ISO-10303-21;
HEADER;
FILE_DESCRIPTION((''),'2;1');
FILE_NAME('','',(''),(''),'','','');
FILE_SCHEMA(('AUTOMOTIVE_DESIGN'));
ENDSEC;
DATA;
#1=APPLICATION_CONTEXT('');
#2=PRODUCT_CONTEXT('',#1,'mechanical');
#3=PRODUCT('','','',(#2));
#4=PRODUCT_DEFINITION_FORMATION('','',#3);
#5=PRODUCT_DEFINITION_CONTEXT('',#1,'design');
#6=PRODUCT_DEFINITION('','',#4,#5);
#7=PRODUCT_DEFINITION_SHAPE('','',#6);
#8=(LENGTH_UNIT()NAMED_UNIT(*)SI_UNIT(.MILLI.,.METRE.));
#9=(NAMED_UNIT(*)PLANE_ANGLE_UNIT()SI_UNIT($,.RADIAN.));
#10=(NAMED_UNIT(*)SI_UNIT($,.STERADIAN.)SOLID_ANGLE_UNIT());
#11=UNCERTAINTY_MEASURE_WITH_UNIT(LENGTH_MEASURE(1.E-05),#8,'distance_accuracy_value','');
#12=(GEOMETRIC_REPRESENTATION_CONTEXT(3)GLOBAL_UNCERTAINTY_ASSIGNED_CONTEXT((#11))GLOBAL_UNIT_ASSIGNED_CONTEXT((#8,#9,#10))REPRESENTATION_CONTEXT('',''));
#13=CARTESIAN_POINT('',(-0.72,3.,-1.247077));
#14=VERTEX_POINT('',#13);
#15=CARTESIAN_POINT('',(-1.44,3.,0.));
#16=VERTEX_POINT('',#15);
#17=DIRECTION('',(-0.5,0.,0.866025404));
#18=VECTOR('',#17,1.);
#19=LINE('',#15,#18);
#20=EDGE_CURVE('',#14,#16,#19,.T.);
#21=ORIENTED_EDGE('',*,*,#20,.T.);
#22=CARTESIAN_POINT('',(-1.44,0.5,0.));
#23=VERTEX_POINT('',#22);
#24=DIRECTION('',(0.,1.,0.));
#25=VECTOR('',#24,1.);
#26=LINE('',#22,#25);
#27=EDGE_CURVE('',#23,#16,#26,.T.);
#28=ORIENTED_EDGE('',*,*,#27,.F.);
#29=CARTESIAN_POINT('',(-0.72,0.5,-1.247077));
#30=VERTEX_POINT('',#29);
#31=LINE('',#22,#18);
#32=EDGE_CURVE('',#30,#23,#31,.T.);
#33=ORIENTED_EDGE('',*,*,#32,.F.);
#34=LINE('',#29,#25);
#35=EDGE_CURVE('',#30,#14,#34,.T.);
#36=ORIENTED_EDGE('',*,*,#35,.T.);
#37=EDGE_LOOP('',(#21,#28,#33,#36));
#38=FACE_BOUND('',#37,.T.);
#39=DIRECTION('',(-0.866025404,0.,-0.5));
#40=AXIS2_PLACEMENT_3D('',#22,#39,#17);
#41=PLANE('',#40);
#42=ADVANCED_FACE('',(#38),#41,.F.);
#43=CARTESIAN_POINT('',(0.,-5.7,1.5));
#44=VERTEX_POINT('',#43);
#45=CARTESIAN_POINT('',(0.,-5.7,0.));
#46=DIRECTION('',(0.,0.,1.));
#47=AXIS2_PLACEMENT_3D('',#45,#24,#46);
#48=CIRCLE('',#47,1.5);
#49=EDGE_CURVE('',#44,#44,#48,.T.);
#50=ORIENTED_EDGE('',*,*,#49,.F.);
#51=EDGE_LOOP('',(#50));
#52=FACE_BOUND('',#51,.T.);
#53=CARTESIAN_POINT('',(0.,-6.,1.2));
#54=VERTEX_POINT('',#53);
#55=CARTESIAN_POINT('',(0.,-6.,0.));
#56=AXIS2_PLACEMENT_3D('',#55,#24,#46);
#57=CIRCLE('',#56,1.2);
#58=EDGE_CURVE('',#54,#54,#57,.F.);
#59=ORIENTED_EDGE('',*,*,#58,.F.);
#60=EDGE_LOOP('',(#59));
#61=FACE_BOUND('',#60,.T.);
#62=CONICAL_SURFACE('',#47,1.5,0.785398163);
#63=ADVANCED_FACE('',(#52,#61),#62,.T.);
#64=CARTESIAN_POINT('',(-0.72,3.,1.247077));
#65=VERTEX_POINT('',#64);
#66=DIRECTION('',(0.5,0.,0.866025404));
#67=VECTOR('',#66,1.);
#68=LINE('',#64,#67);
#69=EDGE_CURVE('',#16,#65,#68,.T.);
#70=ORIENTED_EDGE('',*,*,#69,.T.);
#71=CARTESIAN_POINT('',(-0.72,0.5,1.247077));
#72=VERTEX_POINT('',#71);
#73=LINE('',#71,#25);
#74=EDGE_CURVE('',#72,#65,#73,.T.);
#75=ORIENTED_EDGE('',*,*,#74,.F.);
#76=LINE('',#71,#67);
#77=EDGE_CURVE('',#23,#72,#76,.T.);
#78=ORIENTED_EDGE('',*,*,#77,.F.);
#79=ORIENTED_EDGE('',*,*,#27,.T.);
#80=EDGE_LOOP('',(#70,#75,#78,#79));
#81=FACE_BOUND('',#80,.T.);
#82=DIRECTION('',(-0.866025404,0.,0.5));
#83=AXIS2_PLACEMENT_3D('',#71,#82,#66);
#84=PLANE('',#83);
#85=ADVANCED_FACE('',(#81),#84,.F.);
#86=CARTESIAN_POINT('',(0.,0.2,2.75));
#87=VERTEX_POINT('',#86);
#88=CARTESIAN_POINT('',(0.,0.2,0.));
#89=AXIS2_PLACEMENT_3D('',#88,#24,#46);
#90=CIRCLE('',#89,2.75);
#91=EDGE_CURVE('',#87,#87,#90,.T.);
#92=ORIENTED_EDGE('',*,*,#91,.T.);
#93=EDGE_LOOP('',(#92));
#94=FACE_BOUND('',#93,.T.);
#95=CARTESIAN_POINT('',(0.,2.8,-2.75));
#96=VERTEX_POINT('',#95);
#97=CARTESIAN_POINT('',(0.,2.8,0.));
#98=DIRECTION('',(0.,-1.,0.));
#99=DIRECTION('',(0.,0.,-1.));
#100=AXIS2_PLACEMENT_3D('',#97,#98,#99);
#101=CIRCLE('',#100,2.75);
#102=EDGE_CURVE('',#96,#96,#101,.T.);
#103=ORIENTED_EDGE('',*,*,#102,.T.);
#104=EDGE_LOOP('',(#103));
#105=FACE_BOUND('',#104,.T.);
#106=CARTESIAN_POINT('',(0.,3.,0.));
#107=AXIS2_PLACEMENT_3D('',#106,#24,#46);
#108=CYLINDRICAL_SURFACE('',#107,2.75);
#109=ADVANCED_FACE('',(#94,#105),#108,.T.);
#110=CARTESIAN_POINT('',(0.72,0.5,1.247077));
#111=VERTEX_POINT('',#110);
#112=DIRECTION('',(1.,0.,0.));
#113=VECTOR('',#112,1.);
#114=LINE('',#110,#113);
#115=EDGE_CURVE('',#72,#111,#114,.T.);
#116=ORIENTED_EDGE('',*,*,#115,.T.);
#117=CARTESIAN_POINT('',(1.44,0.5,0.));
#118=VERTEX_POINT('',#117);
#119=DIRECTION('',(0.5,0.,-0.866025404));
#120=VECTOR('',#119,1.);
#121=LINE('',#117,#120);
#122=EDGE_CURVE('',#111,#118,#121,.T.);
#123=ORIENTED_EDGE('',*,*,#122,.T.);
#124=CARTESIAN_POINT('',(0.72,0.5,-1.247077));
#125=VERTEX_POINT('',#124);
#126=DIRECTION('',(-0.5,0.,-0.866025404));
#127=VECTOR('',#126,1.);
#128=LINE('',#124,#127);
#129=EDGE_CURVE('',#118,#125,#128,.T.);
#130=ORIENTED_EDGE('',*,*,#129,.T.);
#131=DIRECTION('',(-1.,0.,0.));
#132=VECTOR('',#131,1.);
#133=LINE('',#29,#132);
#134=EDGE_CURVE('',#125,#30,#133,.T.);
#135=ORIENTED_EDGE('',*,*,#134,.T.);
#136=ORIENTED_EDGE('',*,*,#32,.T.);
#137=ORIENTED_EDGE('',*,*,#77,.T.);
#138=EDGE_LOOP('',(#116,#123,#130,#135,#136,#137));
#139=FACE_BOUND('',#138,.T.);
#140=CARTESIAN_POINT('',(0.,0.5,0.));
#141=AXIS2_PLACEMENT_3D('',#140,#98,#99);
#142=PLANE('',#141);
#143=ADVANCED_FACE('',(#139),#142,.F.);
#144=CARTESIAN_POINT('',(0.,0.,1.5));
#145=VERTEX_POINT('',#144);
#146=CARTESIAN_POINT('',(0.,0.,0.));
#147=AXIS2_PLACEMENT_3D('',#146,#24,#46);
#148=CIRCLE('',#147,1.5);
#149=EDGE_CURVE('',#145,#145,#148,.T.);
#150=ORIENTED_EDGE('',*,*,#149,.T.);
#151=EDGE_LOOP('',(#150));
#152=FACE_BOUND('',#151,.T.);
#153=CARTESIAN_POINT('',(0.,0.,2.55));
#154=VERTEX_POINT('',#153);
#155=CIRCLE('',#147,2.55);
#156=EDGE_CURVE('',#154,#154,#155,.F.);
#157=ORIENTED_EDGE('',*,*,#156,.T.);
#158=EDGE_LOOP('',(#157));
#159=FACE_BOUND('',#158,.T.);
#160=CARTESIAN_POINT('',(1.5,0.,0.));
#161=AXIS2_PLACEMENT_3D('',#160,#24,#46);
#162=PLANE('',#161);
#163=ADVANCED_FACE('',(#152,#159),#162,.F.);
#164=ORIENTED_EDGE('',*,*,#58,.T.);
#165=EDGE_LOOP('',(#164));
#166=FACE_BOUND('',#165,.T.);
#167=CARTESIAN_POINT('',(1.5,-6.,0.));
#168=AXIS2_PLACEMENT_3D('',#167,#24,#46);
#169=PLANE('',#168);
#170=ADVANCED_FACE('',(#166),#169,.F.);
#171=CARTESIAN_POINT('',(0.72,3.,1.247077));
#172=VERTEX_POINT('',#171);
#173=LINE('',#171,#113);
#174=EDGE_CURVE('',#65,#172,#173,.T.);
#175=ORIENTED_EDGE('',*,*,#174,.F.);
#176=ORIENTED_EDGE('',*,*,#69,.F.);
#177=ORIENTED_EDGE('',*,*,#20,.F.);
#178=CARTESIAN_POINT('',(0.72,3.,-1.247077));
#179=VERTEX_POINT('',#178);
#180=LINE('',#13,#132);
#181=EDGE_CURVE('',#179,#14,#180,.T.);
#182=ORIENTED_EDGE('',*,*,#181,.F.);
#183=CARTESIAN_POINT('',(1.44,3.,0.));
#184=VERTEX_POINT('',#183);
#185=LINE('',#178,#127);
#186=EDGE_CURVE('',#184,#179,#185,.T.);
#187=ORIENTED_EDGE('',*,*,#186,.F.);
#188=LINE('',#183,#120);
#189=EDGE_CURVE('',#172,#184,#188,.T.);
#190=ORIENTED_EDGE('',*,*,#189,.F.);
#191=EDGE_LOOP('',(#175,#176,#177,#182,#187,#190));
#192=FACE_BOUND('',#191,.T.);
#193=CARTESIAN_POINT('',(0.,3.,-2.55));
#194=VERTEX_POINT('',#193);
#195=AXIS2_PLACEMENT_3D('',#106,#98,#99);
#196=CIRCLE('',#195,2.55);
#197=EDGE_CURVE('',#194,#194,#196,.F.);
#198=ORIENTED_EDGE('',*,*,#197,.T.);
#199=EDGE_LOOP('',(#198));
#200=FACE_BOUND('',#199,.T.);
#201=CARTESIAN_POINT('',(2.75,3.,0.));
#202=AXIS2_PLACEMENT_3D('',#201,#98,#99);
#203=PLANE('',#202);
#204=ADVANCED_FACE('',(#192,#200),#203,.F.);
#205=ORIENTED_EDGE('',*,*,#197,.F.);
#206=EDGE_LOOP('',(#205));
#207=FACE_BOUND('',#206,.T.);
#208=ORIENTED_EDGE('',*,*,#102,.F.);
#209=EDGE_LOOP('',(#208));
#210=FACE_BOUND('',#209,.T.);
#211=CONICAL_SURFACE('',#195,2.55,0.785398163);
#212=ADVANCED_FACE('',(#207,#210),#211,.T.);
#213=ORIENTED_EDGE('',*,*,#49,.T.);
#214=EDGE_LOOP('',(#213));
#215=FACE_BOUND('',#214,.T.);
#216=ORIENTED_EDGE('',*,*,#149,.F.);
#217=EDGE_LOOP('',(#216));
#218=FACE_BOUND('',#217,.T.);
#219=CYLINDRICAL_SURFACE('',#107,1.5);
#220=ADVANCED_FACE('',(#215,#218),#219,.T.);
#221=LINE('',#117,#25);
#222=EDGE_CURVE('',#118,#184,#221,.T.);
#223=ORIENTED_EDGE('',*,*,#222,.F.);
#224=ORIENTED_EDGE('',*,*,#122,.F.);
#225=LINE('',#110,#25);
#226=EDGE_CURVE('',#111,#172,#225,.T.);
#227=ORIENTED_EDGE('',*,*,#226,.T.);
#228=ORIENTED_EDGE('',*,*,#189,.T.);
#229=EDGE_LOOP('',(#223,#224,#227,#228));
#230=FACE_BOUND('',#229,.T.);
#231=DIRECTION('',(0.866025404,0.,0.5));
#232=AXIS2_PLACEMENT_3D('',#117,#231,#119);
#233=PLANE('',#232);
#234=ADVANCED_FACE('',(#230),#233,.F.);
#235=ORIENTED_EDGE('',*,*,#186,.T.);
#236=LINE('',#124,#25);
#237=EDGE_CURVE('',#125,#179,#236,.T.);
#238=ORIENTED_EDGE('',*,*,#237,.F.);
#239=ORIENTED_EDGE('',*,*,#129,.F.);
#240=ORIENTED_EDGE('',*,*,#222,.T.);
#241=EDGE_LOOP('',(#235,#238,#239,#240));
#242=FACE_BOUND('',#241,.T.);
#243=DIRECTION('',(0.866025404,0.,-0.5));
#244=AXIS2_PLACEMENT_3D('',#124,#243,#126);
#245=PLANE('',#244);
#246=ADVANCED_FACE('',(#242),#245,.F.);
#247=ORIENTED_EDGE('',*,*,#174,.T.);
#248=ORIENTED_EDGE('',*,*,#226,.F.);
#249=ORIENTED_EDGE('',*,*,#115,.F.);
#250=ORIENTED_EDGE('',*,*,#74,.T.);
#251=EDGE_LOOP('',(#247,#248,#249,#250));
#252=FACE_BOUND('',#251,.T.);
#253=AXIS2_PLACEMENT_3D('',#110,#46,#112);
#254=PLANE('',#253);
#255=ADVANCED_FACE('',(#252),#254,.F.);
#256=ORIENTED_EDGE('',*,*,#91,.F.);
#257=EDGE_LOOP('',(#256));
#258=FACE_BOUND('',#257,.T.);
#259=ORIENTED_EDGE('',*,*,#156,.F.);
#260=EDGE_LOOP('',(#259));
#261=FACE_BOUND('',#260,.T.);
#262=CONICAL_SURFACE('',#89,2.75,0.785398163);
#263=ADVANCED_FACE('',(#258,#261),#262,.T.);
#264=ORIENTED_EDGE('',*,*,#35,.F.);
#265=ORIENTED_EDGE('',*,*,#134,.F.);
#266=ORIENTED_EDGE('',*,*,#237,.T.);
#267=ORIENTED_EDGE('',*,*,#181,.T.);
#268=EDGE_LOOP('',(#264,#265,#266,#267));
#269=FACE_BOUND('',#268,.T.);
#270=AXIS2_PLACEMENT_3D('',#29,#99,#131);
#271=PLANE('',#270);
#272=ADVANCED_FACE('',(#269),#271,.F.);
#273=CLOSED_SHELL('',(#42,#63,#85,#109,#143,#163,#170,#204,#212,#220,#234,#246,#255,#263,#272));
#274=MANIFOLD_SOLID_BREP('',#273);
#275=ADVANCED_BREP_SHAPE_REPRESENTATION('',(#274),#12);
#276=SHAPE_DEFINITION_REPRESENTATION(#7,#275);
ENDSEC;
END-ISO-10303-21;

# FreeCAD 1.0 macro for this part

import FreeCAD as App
import Part
import Sketcher
from FreeCAD import Vector
Q = App.Units.Quantity


def edges_at(feature, points):
    """Names of the edges that pass closest to the given points."""
    edges = feature.Shape.Edges
    near = lambda p: min(range(len(edges)), key=lambda i: edges[i].distToShape(Part.Vertex(*p))[0])
    return sorted({f"Edge{near(p) + 1}" for p in points})

doc = App.newDocument("Part")
params = doc.addObject("Spreadsheet::Sheet", "Params")
for row, (alias, value) in enumerate([
    ("sketch1_height", "3 mm"),
    ("sketch1_height2", "9 mm"),
    ("sketch1_width", "1.5 mm"),
    ("sketch1_width2", "1.25 mm"),
    ("revolution_angle", "360 deg"),
    ("chamfer_size", "0.2 mm"),
    ("chamfer2_size", "0.3 mm"),
    ("sketch2_width", "1.44 mm"),
    ("sketch2_length", "1.44 mm"),
    ("pocket1_length", "2.5 mm"),
], start=1):
    params.set(f"A{row}", alias)
    params.set(f"B{row}", "=" + value)
    params.setAlias(f"B{row}", alias)

body = doc.addObject("PartDesign::Body", "Body")

# Sketch on XY plane
sketch1 = doc.addObject("Sketcher::SketchObject", "Sketch")
body.addObject(sketch1)
sketch1.AttachmentSupport = (doc.XY_Plane, [""])
sketch1.MapMode = "FlatFace"
sketch1.addGeometry([
    Part.LineSegment(Vector(1.5, 0, 0), Vector(2.8, 0, 0)),  # 0
    Part.LineSegment(Vector(2.8, 0, 0), Vector(2.8, 3, 0)),  # 1
    Part.LineSegment(Vector(2.8, 3, 0), Vector(0, 3, 0)),  # 2
    Part.LineSegment(Vector(0, 3, 0), Vector(0, -6, 0)),  # 3
    Part.LineSegment(Vector(0, -6, 0), Vector(1.5, -6, 0)),  # 4
    Part.LineSegment(Vector(1.5, -6, 0), Vector(1.5, 0, 0)),  # 5
], False)
sketch1.addConstraint([
    Sketcher.Constraint("Coincident", 0, 2, 1, 1),
    Sketcher.Constraint("Coincident", 1, 2, 2, 1),
    Sketcher.Constraint("Coincident", 2, 2, 3, 1),
    Sketcher.Constraint("Coincident", 3, 2, 4, 1),
    Sketcher.Constraint("Coincident", 4, 2, 5, 1),
    Sketcher.Constraint("Coincident", 5, 2, 0, 1),
    Sketcher.Constraint("Horizontal", 0),
    Sketcher.Constraint("Vertical", 1),
    Sketcher.Constraint("Horizontal", 2),
    Sketcher.Constraint("Vertical", 3),
    Sketcher.Constraint("Horizontal", 4),
    Sketcher.Constraint("Vertical", 5),
    Sketcher.Constraint("PointOnObject", 0, 2, -1),
    Sketcher.Constraint("PointOnObject", 2, 2, -2),
    Sketcher.Constraint("DistanceY", 1, 1, 1, 2, Q("3 mm")),
    Sketcher.Constraint("DistanceY", 3, 2, 3, 1, Q("9 mm")),
    Sketcher.Constraint("DistanceX", 4, 1, 4, 2, Q("1.5 mm")),
    Sketcher.Constraint("DistanceX", 0, 1, 0, 2, Q("1.25 mm")),
])
sketch1.setExpression("Constraints[14]", "Params.sketch1_height")
sketch1.setExpression("Constraints[15]", "Params.sketch1_height2")
sketch1.setExpression("Constraints[16]", "Params.sketch1_width")
sketch1.setExpression("Constraints[17]", "Params.sketch1_width2")
revolution = doc.addObject("PartDesign::Revolution", "Revolution")
body.addObject(revolution)
revolution.Profile = sketch1
revolution.ReferenceAxis = (sketch1, ["V_Axis"])
revolution.setExpression("Angle", "Params.revolution_angle")
doc.recompute()

chamfer = doc.addObject("PartDesign::Chamfer", "Chamfer")
body.addObject(chamfer)
chamfer.Base = (revolution, edges_at(revolution, [(0, 3, -2.75), (0, 0, -2.75)]))
chamfer.setExpression("Size", "Params.chamfer_size")
doc.recompute()

chamfer2 = doc.addObject("PartDesign::Chamfer", "Chamfer001")
body.addObject(chamfer2)
chamfer2.Base = (chamfer, edges_at(chamfer, [(0, -6, -1.5)]))
chamfer2.setExpression("Size", "Params.chamfer2_size")

# Sketch on XZ plane
sketch2 = doc.addObject("Sketcher::SketchObject", "Sketch001")
body.addObject(sketch2)
sketch2.AttachmentSupport = (doc.XZ_Plane, [""])
sketch2.MapMode = "FlatFace"
sketch2.AttachmentOffset = App.Placement(Vector(0, 0, -3), App.Rotation())
sketch2.addGeometry([
    Part.LineSegment(Vector(0.7, -1.2, 0), Vector(-0.7, -1.2, 0)),  # 0
    Part.LineSegment(Vector(-0.7, -1.2, 0), Vector(-1.4, 0, 0)),  # 1
    Part.LineSegment(Vector(-1.4, 0, 0), Vector(-0.7, 1.2, 0)),  # 2
    Part.LineSegment(Vector(-0.7, 1.2, 0), Vector(0.7, 1.2, 0)),  # 3
    Part.LineSegment(Vector(0.7, 1.2, 0), Vector(1.4, 0, 0)),  # 4
    Part.LineSegment(Vector(1.4, 0, 0), Vector(0.7, -1.2, 0)),  # 5
], False)
sketch2.addConstraint([
    Sketcher.Constraint("Coincident", 0, 2, 1, 1),
    Sketcher.Constraint("Coincident", 1, 2, 2, 1),
    Sketcher.Constraint("Coincident", 2, 2, 3, 1),
    Sketcher.Constraint("Coincident", 3, 2, 4, 1),
    Sketcher.Constraint("Coincident", 4, 2, 5, 1),
    Sketcher.Constraint("Coincident", 5, 2, 0, 1),
    Sketcher.Constraint("Horizontal", 0),
    Sketcher.Constraint("Horizontal", 3),
    Sketcher.Constraint("Symmetric", 0, 2, 3, 2, -1, 1),
    Sketcher.Constraint("Symmetric", 1, 2, 4, 2, -1, 1),
    Sketcher.Constraint("PointOnObject", 1, 2, -1),
    Sketcher.Constraint("Parallel", 2, 5),
    Sketcher.Constraint("Vertical", 0, 2, 2, 2),
    Sketcher.Constraint("Angle", 1, Q("120 deg")),
    Sketcher.Constraint("DistanceX", 0, 2, 0, 1, Q("1.44 mm")),
    Sketcher.Constraint("Distance", 1, Q("1.44 mm")),
])
sketch2.setExpression("Constraints[14]", "Params.sketch2_width")
sketch2.setExpression("Constraints[15]", "Params.sketch2_length")
pocket1 = doc.addObject("PartDesign::Pocket", "Pocket")
body.addObject(pocket1)
pocket1.Profile = sketch2
pocket1.setExpression("Length", "Params.pocket1_length")
pocket1.Reversed = True

doc.recompute()
